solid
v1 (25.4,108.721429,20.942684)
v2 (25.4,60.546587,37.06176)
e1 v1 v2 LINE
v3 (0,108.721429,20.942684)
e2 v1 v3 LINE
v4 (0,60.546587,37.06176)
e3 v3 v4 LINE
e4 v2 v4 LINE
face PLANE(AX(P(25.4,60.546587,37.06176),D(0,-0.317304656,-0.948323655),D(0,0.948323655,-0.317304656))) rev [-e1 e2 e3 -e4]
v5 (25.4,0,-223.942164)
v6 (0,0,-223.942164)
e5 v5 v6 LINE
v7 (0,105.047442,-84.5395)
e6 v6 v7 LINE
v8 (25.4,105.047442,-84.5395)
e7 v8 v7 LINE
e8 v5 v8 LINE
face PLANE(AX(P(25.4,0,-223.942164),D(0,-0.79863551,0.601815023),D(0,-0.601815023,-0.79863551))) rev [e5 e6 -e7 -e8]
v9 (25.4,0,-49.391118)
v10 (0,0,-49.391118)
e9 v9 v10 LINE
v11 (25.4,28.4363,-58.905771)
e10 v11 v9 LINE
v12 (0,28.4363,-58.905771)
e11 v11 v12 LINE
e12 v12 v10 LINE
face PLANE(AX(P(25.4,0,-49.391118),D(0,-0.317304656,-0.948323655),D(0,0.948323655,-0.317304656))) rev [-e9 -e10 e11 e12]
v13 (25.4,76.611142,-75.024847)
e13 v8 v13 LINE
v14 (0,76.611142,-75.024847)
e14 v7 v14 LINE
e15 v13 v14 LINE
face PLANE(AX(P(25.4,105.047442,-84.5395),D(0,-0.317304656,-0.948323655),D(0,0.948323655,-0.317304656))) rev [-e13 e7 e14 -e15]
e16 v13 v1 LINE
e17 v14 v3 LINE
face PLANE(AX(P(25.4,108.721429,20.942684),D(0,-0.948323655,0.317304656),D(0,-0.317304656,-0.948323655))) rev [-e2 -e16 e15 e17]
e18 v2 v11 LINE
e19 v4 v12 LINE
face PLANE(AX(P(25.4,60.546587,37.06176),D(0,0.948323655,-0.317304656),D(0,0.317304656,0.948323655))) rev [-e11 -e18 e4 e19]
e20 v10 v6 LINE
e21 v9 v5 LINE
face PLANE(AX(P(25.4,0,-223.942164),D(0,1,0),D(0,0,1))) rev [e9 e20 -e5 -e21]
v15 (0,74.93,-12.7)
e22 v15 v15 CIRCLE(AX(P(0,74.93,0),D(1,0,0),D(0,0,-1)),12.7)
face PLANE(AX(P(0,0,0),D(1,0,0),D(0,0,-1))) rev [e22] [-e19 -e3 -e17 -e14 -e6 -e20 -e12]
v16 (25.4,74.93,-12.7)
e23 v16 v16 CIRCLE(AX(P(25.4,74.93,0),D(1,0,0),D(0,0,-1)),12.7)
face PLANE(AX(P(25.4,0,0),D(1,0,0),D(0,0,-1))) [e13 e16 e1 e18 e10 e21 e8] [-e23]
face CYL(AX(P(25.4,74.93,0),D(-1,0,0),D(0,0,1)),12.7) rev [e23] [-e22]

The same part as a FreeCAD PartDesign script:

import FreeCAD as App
import Part
import Sketcher
from FreeCAD import Vector
Q = App.Units.Quantity

doc = App.newDocument("Part")
body = doc.addObject("PartDesign::Body", "Body")

# Sketch on YZ plane
sketch1 = body.newObject("Sketcher::SketchObject", "Sketch")
sketch1.AttachmentSupport = (doc.getObject("YZ_Plane"), [""])
sketch1.MapMode = "FlatFace"
sketch1.addGeometry(Part.LineSegment(Vector(0, -49, 0), Vector(0, -224, 0)), False)
sketch1.addGeometry(Part.LineSegment(Vector(0, -224, 0), Vector(105, -85, 0)), False)
sketch1.addGeometry(Part.LineSegment(Vector(105, -85, 0), Vector(77, -75, 0)), False)
sketch1.addGeometry(Part.LineSegment(Vector(77, -75, 0), Vector(109, 21, 0)), False)
sketch1.addGeometry(Part.LineSegment(Vector(109, 21, 0), Vector(61, 37, 0)), False)
sketch1.addGeometry(Part.LineSegment(Vector(61, 37, 0), Vector(28, -59, 0)), False)
sketch1.addGeometry(Part.LineSegment(Vector(28, -59, 0), Vector(0, -49, 0)), False)
sketch1.addGeometry(Part.Circle(Vector(75, 0, 0), Vector(0, 0, 1), 13), False)
sketch1.addConstraint(Sketcher.Constraint("Coincident", 0, 2, 1, 1))
sketch1.addConstraint(Sketcher.Constraint("Coincident", 1, 2, 2, 1))
sketch1.addConstraint(Sketcher.Constraint("Coincident", 2, 2, 3, 1))
sketch1.addConstraint(Sketcher.Constraint("Coincident", 3, 2, 4, 1))
sketch1.addConstraint(Sketcher.Constraint("Coincident", 4, 2, 5, 1))
sketch1.addConstraint(Sketcher.Constraint("Coincident", 5, 2, 6, 1))
sketch1.addConstraint(Sketcher.Constraint("Coincident", 6, 2, 0, 1))
sketch1.addConstraint(Sketcher.Constraint("Vertical", 0))
sketch1.addConstraint(Sketcher.Constraint("PointOnObject", 7, 3, -1))
sketch1.addConstraint(Sketcher.Constraint("PointOnObject", 0, 2, -2))
sketch1.addConstraint(Sketcher.Constraint("Perpendicular", 2, 3))
sketch1.addConstraint(Sketcher.Constraint("Perpendicular", 3, 4))
sketch1.addConstraint(Sketcher.Constraint("Perpendicular", 4, 5))
sketch1.addConstraint(Sketcher.Constraint("Perpendicular", 5, 6))
sketch1.addConstraint(Sketcher.Constraint("Equal", 3, 5))
sketch1.addConstraint(Sketcher.Constraint("Equal", 2, 6))
sketch1.addConstraint(Sketcher.Constraint("Diameter", 7, Q("1 in")))
sketch1.addConstraint(Sketcher.Constraint("Distance", 4, Q("2 in")))
sketch1.addConstraint(Sketcher.Constraint("Angle", 1, Q("53 deg")))
sketch1.addConstraint(Sketcher.Constraint("Angle", 2, Q("161.5 deg")))
sketch1.addConstraint(Sketcher.Constraint("DistanceX", -1, 1, 7, 3, Q("2.95 in")))
sketch1.addConstraint(Sketcher.Constraint("DistanceY", 1, 2, -1, 1, 84.5395))
sketch1.addConstraint(Sketcher.Constraint("DistanceX", -1, 1, 5, 2, 28.4363))
sketch1.addConstraint(Sketcher.Constraint("DistanceX", -1, 1, 3, 2, 108.721429))
pad1 = body.newObject("PartDesign::Pad", "Pad")
pad1.Profile = sketch1
pad1.Length = Q("1 in")

doc.recompute()
